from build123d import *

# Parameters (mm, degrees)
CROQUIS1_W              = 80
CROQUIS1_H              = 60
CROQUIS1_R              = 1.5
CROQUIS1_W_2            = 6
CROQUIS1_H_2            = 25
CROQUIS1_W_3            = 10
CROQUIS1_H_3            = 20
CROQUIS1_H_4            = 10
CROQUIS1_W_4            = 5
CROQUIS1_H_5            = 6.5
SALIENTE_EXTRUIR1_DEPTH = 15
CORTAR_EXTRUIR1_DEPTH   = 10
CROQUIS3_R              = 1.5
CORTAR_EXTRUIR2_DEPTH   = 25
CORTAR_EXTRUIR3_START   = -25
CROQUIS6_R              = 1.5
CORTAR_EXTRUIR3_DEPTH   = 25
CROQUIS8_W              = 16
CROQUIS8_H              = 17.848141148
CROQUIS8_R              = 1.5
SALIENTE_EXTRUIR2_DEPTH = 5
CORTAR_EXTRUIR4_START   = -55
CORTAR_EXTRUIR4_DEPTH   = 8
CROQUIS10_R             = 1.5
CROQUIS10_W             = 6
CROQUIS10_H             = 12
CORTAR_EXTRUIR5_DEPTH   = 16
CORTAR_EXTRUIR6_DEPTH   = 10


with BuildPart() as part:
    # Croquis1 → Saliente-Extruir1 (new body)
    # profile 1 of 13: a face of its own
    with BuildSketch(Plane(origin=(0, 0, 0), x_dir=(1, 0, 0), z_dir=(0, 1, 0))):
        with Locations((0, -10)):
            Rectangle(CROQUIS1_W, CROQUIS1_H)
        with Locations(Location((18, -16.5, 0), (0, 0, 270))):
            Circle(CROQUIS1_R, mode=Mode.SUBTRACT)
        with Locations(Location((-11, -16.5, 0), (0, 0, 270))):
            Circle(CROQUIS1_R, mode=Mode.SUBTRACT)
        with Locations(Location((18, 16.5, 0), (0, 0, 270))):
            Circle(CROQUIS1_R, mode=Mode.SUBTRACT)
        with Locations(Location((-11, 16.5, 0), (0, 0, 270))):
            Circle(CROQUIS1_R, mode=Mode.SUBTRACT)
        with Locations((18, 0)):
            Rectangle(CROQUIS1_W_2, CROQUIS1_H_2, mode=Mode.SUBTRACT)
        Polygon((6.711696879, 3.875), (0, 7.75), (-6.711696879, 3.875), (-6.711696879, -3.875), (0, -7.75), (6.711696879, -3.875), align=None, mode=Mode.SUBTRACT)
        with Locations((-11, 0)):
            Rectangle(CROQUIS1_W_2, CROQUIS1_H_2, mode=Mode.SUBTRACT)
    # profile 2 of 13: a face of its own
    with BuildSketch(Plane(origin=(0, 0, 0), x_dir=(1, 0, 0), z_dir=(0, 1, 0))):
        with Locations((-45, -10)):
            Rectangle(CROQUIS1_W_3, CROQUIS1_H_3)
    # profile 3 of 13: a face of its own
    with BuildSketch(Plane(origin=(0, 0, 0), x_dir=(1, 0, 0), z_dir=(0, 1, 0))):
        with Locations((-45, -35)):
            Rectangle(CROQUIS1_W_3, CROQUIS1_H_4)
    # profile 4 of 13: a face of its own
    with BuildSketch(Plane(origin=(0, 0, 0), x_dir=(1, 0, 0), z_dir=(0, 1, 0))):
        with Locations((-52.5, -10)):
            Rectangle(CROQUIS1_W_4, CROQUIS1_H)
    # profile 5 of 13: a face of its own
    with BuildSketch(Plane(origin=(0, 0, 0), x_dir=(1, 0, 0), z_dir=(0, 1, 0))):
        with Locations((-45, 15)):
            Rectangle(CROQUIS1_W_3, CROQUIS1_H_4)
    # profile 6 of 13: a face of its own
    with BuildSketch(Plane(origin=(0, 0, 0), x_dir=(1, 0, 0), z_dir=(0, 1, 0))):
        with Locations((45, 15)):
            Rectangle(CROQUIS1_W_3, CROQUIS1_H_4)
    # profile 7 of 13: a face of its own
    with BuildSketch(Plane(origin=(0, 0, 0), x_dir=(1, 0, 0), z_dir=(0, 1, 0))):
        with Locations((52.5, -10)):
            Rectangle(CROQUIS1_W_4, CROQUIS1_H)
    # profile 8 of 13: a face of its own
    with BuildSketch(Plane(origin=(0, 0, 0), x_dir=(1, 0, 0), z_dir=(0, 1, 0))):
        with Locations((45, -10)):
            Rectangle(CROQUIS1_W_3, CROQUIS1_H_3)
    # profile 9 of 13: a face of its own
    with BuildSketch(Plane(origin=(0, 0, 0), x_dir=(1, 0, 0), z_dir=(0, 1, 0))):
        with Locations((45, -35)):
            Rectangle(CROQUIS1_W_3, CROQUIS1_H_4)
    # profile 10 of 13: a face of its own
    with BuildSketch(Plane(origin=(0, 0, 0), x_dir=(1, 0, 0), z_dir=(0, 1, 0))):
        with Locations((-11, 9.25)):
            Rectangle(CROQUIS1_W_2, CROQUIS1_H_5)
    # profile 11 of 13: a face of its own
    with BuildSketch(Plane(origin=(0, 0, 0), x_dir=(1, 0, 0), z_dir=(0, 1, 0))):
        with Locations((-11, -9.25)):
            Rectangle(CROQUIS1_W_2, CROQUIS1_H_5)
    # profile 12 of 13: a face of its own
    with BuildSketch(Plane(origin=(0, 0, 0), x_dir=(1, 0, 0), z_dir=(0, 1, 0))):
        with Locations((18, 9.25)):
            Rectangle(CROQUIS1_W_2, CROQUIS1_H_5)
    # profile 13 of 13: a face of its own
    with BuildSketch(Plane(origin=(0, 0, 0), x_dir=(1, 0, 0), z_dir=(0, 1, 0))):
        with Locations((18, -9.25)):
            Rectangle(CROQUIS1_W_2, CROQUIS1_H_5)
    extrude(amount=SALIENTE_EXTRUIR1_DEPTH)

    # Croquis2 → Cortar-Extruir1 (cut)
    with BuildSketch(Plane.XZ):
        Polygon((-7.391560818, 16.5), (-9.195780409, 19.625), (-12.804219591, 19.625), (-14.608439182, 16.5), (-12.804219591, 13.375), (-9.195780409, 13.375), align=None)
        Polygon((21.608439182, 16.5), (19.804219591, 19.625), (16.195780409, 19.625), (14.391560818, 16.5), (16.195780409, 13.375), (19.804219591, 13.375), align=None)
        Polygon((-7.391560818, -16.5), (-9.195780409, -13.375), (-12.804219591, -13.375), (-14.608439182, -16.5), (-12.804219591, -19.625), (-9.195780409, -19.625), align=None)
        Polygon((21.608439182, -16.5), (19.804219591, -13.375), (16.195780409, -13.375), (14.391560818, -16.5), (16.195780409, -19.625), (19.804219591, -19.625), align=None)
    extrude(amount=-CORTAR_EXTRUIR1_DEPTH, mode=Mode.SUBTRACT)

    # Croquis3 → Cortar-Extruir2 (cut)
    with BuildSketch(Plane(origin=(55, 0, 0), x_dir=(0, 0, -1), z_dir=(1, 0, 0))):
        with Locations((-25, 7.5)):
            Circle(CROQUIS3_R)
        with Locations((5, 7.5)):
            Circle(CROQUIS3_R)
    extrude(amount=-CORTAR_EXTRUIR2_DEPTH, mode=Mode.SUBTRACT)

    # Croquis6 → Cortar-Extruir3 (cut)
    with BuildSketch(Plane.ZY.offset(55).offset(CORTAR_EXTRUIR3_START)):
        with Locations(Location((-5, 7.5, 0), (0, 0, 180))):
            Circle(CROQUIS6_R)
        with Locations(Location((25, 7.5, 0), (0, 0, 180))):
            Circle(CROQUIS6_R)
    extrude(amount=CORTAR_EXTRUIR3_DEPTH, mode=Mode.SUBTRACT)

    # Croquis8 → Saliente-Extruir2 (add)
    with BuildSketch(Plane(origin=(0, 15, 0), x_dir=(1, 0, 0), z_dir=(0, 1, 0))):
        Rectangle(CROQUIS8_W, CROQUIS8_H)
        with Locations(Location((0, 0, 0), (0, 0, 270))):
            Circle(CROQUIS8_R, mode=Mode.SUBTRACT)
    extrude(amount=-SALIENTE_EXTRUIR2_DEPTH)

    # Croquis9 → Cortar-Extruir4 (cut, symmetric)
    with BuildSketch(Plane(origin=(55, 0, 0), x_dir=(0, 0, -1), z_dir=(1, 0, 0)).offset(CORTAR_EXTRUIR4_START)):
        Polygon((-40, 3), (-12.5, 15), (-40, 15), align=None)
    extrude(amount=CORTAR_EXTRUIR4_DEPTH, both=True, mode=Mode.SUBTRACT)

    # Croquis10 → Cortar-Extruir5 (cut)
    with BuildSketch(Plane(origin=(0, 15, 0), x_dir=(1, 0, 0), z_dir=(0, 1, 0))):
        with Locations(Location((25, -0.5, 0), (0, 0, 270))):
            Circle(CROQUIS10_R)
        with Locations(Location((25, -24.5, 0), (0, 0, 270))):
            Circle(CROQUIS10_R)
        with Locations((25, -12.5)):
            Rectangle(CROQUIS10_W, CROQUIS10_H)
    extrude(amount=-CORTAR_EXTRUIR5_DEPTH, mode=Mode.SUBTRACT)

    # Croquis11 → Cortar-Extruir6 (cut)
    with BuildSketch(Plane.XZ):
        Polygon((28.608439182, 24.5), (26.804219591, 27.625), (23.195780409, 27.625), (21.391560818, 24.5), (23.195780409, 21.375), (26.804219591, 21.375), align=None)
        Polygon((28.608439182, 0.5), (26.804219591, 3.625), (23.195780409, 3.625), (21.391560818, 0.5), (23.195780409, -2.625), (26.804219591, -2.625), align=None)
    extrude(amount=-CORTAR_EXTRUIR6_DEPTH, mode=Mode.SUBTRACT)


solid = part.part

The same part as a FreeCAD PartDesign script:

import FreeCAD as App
import Part
import Sketcher
Q = App.Units.Quantity


def add_polygon(sketch, points):
    """Adds a closed chain of lines whose ends are joined by coincident constraints."""
    first, n = sketch.GeometryCount, len(points)
    for a, b in zip(points, points[1:] + points[:1]):
        sketch.addGeometry(Part.LineSegment(App.Vector(*a, 0), App.Vector(*b, 0)), False)
    for i in range(n):
        sketch.addConstraint(Sketcher.Constraint("Coincident", first + i, 2, first + (i + 1) % n, 1))

doc = App.newDocument("Part")
params = doc.addObject("Spreadsheet::Sheet", "Params")
for row, (alias, value) in enumerate([
    ("sketch1_diameter", "3 mm"),
    ("sketch1_width", "110 mm"),
    ("sketch1_width2", "10 mm"),
    ("sketch1_width3", "6 mm"),
    ("sketch1_height", "60 mm"),
    ("pad1_length", "15 mm"),
    ("pocket1_length", "10 mm"),
    ("sketch3_diameter", "3 mm"),
    ("pocket2_length", "25 mm"),
    ("sketch4_diameter", "3 mm"),
    ("pocket3_length", "25 mm"),
    ("sketch5_diameter", "3 mm"),
    ("sketch5_width", "16 mm"),
    ("pad2_length", "5 mm"),
    ("sketch6_width", "12 mm"),
    ("sketch6_height", "27.5 mm"),
    ("pocket4_length", "16 mm"),
    ("sketch7_diameter", "3 mm"),
    ("sketch7_width", "6 mm"),
    ("sketch7_height", "12 mm"),
    ("pocket5_length", "16 mm"),
    ("pocket6_length", "10 mm"),
], start=1):
    params.set(f"A{row}", alias)
    params.set(f"B{row}", "=" + value)
    params.setAlias(f"B{row}", alias)

body = doc.addObject("PartDesign::Body", "Body")

# Sketch on XZ plane
sketch1 = body.newObject("Sketcher::SketchObject", "Sketch")
sketch1.AttachmentSupport = (doc.getObject("XZ_Plane"), [""])
sketch1.MapMode = "FlatFace"
add_polygon(sketch1, [(55, 40), (55, -20), (-55, -20), (-55, 40)])  # lines 0-3
add_polygon(sketch1, [(-40, 20), (-40, 30), (-50, 30), (-50, 20)])  # lines 4-7
add_polygon(sketch1, [(-40, -10), (-40, 0), (-50, 0), (-50, -10)])  # lines 8-11
add_polygon(sketch1, [(40, 30), (40, 20), (50, 20), (50, 30)])  # lines 12-15
add_polygon(sketch1, [(40, 0), (40, -10), (50, -10), (50, 0)])  # lines 16-19
sketch1.addGeometry(Part.Circle(App.Vector(-11, 16.5, 0), App.Vector(0, 0, 1), 1.5), False)  # 20
sketch1.addGeometry(Part.Circle(App.Vector(18, 16.5, 0), App.Vector(0, 0, 1), 1.5), False)  # 21
add_polygon(sketch1, [(-8, -6), (-8, 6), (-14, 6), (-14, -6)])  # lines 22-25
add_polygon(sketch1, [(0, -7.8), (6.7, -3.9), (6.7, 3.9), (0, 7.8), (-6.7, 3.9), (-6.7, -3.9)])  # lines 26-31
sketch1.addGeometry(Part.Circle(App.Vector(-11, -16.5, 0), App.Vector(0, 0, 1), 1.5), False)  # 32
add_polygon(sketch1, [(15, 6), (15, -6), (21, -6), (21, 6)])  # lines 33-36
sketch1.addGeometry(Part.Circle(App.Vector(18, -16.5, 0), App.Vector(0, 0, 1), 1.5), False)  # 37
sketch1.addConstraint([
    Sketcher.Constraint("Vertical", 0),
    Sketcher.Constraint("Horizontal", 1),
    Sketcher.Constraint("Vertical", 2),
    Sketcher.Constraint("Horizontal", 3),
    Sketcher.Constraint("Vertical", 4),
    Sketcher.Constraint("Horizontal", 5),
    Sketcher.Constraint("Vertical", 6),
    Sketcher.Constraint("Horizontal", 7),
    Sketcher.Constraint("Vertical", 8),
    Sketcher.Constraint("Horizontal", 9),
    Sketcher.Constraint("Vertical", 10),
    Sketcher.Constraint("Horizontal", 11),
    Sketcher.Constraint("Vertical", 12),
    Sketcher.Constraint("Horizontal", 13),
    Sketcher.Constraint("Vertical", 14),
    Sketcher.Constraint("Horizontal", 15),
    Sketcher.Constraint("Vertical", 16),
    Sketcher.Constraint("Horizontal", 17),
    Sketcher.Constraint("Vertical", 18),
    Sketcher.Constraint("Horizontal", 19),
    Sketcher.Constraint("Vertical", 22),
    Sketcher.Constraint("Horizontal", 23),
    Sketcher.Constraint("Vertical", 24),
    Sketcher.Constraint("Horizontal", 25),
    Sketcher.Constraint("Vertical", 27),
    Sketcher.Constraint("Vertical", 30),
    Sketcher.Constraint("Vertical", 33),
    Sketcher.Constraint("Horizontal", 34),
    Sketcher.Constraint("Vertical", 35),
    Sketcher.Constraint("Horizontal", 36),
    Sketcher.Constraint("Equal", 20, 21),
    Sketcher.Constraint("Equal", 21, 32),
    Sketcher.Constraint("Equal", 32, 37),
    Sketcher.Constraint("Symmetric", 9, 2, 18, 2, -1, 1),
    Sketcher.Constraint("Symmetric", 26, 2, 29, 2, -1, 1),
    Sketcher.Constraint("Symmetric", 28, 2, 31, 2, -1, 1),
    Sketcher.Constraint("Symmetric", 7, 2, 12, 2, -2),
    Sketcher.Constraint("Symmetric", 5, 2, 14, 2, -2),
    Sketcher.Constraint("Symmetric", 11, 2, 16, 2, -2),
    Sketcher.Constraint("Symmetric", 20, 3, 32, 3, -1),
    Sketcher.Constraint("Symmetric", 21, 3, 37, 3, -1),
    Sketcher.Constraint("PointOnObject", 8, 2, -1),
    Sketcher.Constraint("PointOnObject", 28, 2, -2),
    Sketcher.Constraint("Parallel", 28, 31),
    Sketcher.Constraint("Horizontal", 20, 3, 21, 3),
    Sketcher.Constraint("Horizontal", 27, 2, 29, 2),
    Sketcher.Constraint("Horizontal", 25, 2, 33, 2),
    Sketcher.Constraint("Horizontal", 23, 2, 35, 2),
    Sketcher.Constraint("Vertical", 7, 2, 8, 2),
    Sketcher.Constraint("Vertical", 6, 2, 9, 2),
    Sketcher.Constraint("Equal", 25, 34),
    Sketcher.Constraint("Equal", 19, 4),
    Sketcher.Constraint("Equal", 6, 8),
    Sketcher.Constraint("Diameter", 20, 3.0),
    Sketcher.Constraint("DistanceX", 1, 2, 1, 1, 110.0),
    Sketcher.Constraint("DistanceX", 5, 2, 5, 1, 10.0),
    Sketcher.Constraint("DistanceX", 23, 2, 23, 1, 6.0),
    Sketcher.Constraint("DistanceY", 0, 2, 0, 1, 60.0),
    Sketcher.Constraint("DistanceY", 22, 1, 22, 2, 12.0),
    Sketcher.Constraint("Angle", 26, Q("30 deg")),
    Sketcher.Constraint("DistanceX", 20, 3, -1, 1, 11.0),
    Sketcher.Constraint("DistanceX", -1, 1, 21, 3, 18.0),
    Sketcher.Constraint("DistanceX", -1, 1, 0, 2, 55.0),
    Sketcher.Constraint("DistanceY", 0, 2, -1, 1, 20.0),
    Sketcher.Constraint("DistanceX", 4, 2, -1, 1, 40.0),
    Sketcher.Constraint("DistanceY", -1, 1, 4, 2, 30.0),
    Sketcher.Constraint("DistanceX", 22, 2, -1, 1, 8.0),
    Sketcher.Constraint("DistanceY", -1, 1, 22, 2, 6.0),
    Sketcher.Constraint("DistanceX", -1, 1, 33, 2, 15.0),
    Sketcher.Constraint("DistanceY", 32, 3, 20, 3, 33.0),
    Sketcher.Constraint("DistanceY", 27, 1, 27, 2, 7.75),
    Sketcher.Constraint("Distance", 26, 7.75),
])
sketch1.setExpression("Constraints[87]", "Params.sketch1_diameter")
sketch1.setExpression("Constraints[88]", "Params.sketch1_width")
sketch1.setExpression("Constraints[89]", "Params.sketch1_width2")
sketch1.setExpression("Constraints[90]", "Params.sketch1_width3")
sketch1.setExpression("Constraints[91]", "Params.sketch1_height")
pad1 = body.newObject("PartDesign::Pad", "Pad")
pad1.Profile = sketch1
pad1.setExpression("Length", "Params.pad1_length")
pad1.Reversed = True

# Sketch on XZ plane
sketch2 = body.newObject("Sketcher::SketchObject", "Sketch001")
sketch2.AttachmentSupport = (doc.getObject("XZ_Plane"), [""])
sketch2.MapMode = "FlatFace"
add_polygon(sketch2, [(-7.4, 16.5), (-9.2, 19.6), (-12.8, 19.6), (-14.6, 16.5), (-12.8, 13.4), (-9.2, 13.4)])  # lines 0-5
add_polygon(sketch2, [(21.6, 16.5), (19.8, 19.6), (16.2, 19.6), (14.4, 16.5), (16.2, 13.4), (19.8, 13.4)])  # lines 6-11
add_polygon(sketch2, [(-7.4, -16.5), (-9.2, -13.4), (-12.8, -13.4), (-14.6, -16.5), (-12.8, -19.6), (-9.2, -19.6)])  # lines 12-17
add_polygon(sketch2, [(21.6, -16.5), (19.8, -13.4), (16.2, -13.4), (14.4, -16.5), (16.2, -19.6), (19.8, -19.6)])  # lines 18-23
sketch2.addConstraint([
    Sketcher.Constraint("Horizontal", 1),
    Sketcher.Constraint("Horizontal", 4),
    Sketcher.Constraint("Horizontal", 7),
    Sketcher.Constraint("Horizontal", 10),
    Sketcher.Constraint("Horizontal", 13),
    Sketcher.Constraint("Horizontal", 16),
    Sketcher.Constraint("Horizontal", 19),
    Sketcher.Constraint("Horizontal", 22),
    Sketcher.Constraint("Symmetric", 4, 2, 12, 2, -1),
    Sketcher.Constraint("Symmetric", 2, 2, 14, 2, -1),
    Sketcher.Constraint("Symmetric", 1, 2, 15, 2, -1),
    Sketcher.Constraint("Symmetric", 5, 2, 17, 2, -1),
    Sketcher.Constraint("Symmetric", 10, 2, 18, 2, -1),
    Sketcher.Constraint("Symmetric", 8, 2, 20, 2, -1),
    Sketcher.Constraint("Symmetric", 7, 2, 21, 2, -1),
    Sketcher.Constraint("Symmetric", 11, 2, 23, 2, -1),
    Sketcher.Constraint("Parallel", 0, 3),
    Sketcher.Constraint("Parallel", 2, 5),
    Sketcher.Constraint("Parallel", 3, 6),
    Sketcher.Constraint("Parallel", 5, 8),
    Sketcher.Constraint("Parallel", 6, 9),
    Sketcher.Constraint("Parallel", 8, 11),
    Sketcher.Constraint("Parallel", 9, 12),
    Sketcher.Constraint("Parallel", 11, 14),
    Sketcher.Constraint("Parallel", 14, 17),
    Sketcher.Constraint("Parallel", 17, 20),
    Sketcher.Constraint("Parallel", 20, 23),
    Sketcher.Constraint("Horizontal", 2, 2, 5, 2),
    Sketcher.Constraint("Horizontal", 1, 2, 6, 2),
    Sketcher.Constraint("Horizontal", 5, 2, 8, 2),
    Sketcher.Constraint("Horizontal", 4, 2, 9, 2),
    Sketcher.Constraint("Horizontal", 8, 2, 11, 2),
    Sketcher.Constraint("Vertical", 1, 2, 3, 2),
    Sketcher.Constraint("Equal", 4, 7),
    Sketcher.Constraint("Angle", 0, Q("120 deg")),
    Sketcher.Constraint("DistanceX", 0, 2, 6, 2, 29.0),
    Sketcher.Constraint("DistanceY", 12, 2, 0, 2, 33.0),
    Sketcher.Constraint("DistanceY", 3, 2, 1, 2, 6.25),
    Sketcher.Constraint("DistanceX", 1, 2, 1, 1, 3.608439),
    Sketcher.Constraint("DistanceX", 0, 2, -1, 1, 9.19578),
])
pocket1 = body.newObject("PartDesign::Pocket", "Pocket")
pocket1.Profile = sketch2
pocket1.setExpression("Length", "Params.pocket1_length")

# Sketch on YZ plane
sketch3 = body.newObject("Sketcher::SketchObject", "Sketch002")
sketch3.AttachmentSupport = (doc.getObject("YZ_Plane"), [""])
sketch3.MapMode = "FlatFace"
sketch3.AttachmentOffset = App.Placement(App.Vector(0, 0, 55), App.Rotation())
sketch3.addGeometry([
    Part.Circle(App.Vector(7.5, 25, 0), App.Vector(0, 0, 1), 1.5),
    Part.Circle(App.Vector(7.5, -5, 0), App.Vector(0, 0, 1), 1.5),
], False)
sketch3.addConstraint([
    Sketcher.Constraint("Equal", 0, 1),
    Sketcher.Constraint("Vertical", 0, 3, 1, 3),
    Sketcher.Constraint("Diameter", 0, 3.0),
    Sketcher.Constraint("DistanceY", -1, 1, 0, 3, 25.0),
    Sketcher.Constraint("DistanceY", 1, 3, -1, 1, 5.0),
    Sketcher.Constraint("DistanceX", -1, 1, 0, 3, 7.5),
])
sketch3.setExpression("Constraints[2]", "Params.sketch3_diameter")
pocket2 = body.newObject("PartDesign::Pocket", "Pocket001")
pocket2.Profile = sketch3
pocket2.setExpression("Length", "Params.pocket2_length")

# Sketch on YZ plane
sketch4 = body.newObject("Sketcher::SketchObject", "Sketch003")
sketch4.AttachmentSupport = (doc.getObject("YZ_Plane"), [""])
sketch4.MapMode = "FlatFace"
sketch4.AttachmentOffset = App.Placement(App.Vector(0, 0, -30), App.Rotation())
sketch4.addGeometry([
    Part.Circle(App.Vector(7.5, -5, 0), App.Vector(0, 0, 1), 1.5),
    Part.Circle(App.Vector(7.5, 25, 0), App.Vector(0, 0, 1), 1.5),
], False)
sketch4.addConstraint([
    Sketcher.Constraint("Equal", 0, 1),
    Sketcher.Constraint("Vertical", 0, 3, 1, 3),
    Sketcher.Constraint("Diameter", 0, 3.0),
    Sketcher.Constraint("DistanceY", 0, 3, -1, 1, 5.0),
    Sketcher.Constraint("DistanceY", -1, 1, 1, 3, 25.0),
    Sketcher.Constraint("DistanceX", -1, 1, 0, 3, 7.5),
])
sketch4.setExpression("Constraints[2]", "Params.sketch4_diameter")
pocket3 = body.newObject("PartDesign::Pocket", "Pocket002")
pocket3.Profile = sketch4
pocket3.setExpression("Length", "Params.pocket3_length")

# Sketch on XZ plane
sketch5 = body.newObject("Sketcher::SketchObject", "Sketch004")
sketch5.AttachmentSupport = (doc.getObject("XZ_Plane"), [""])
sketch5.MapMode = "FlatFace"
sketch5.AttachmentOffset = App.Placement(App.Vector(0, 0, -15), App.Rotation())
add_polygon(sketch5, [(-8, -8.9), (-8, 8.9), (8, 8.9), (8, -8.9)])  # lines 0-3
sketch5.addGeometry(Part.Circle(App.Vector(0, 0, 0), App.Vector(0, 0, 1), 1.5), False)  # 4
sketch5.addConstraint([
    Sketcher.Constraint("Vertical", 0),
    Sketcher.Constraint("Horizontal", 1),
    Sketcher.Constraint("Vertical", 2),
    Sketcher.Constraint("Horizontal", 3),
    Sketcher.Constraint("Coincident", 4, 3, -1, 1),
    Sketcher.Constraint("Symmetric", 0, 2, 2, 2, -1, 1),
    Sketcher.Constraint("Diameter", 4, 3.0),
    Sketcher.Constraint("DistanceX", 1, 1, 1, 2, 16.0),
    Sketcher.Constraint("DistanceY", 0, 1, 0, 2, 17.848141),
])
sketch5.setExpression("Constraints[10]", "Params.sketch5_diameter")
sketch5.setExpression("Constraints[11]", "Params.sketch5_width")
pad2 = body.newObject("PartDesign::Pad", "Pad001")
pad2.Profile = sketch5
pad2.setExpression("Length", "Params.pad2_length")

# Sketch on YZ plane
sketch6 = body.newObject("Sketcher::SketchObject", "Sketch005")
sketch6.AttachmentSupport = (doc.getObject("YZ_Plane"), [""])
sketch6.MapMode = "FlatFace"
add_polygon(sketch6, [(3, 40), (15, 12), (15, 40)])  # lines 0-2
sketch6.addConstraint([
    Sketcher.Constraint("Vertical", 1),
    Sketcher.Constraint("Horizontal", 2),
    Sketcher.Constraint("DistanceX", 2, 2, 2, 1, 12.0),
    Sketcher.Constraint("DistanceY", 1, 1, 1, 2, 27.5),
    Sketcher.Constraint("DistanceX", -1, 1, 0, 2, 15.0),
    Sketcher.Constraint("DistanceY", -1, 1, 1, 2, 40.0),
])
sketch6.setExpression("Constraints[5]", "Params.sketch6_width")
sketch6.setExpression("Constraints[6]", "Params.sketch6_height")
pocket4 = body.newObject("PartDesign::Pocket", "Pocket003")
pocket4.Profile = sketch6
pocket4.setExpression("Length", "Params.pocket4_length")
pocket4.Midplane = True

# Sketch on XZ plane
sketch7 = body.newObject("Sketcher::SketchObject", "Sketch006")
sketch7.AttachmentSupport = (doc.getObject("XZ_Plane"), [""])
sketch7.MapMode = "FlatFace"
sketch7.AttachmentOffset = App.Placement(App.Vector(0, 0, -15), App.Rotation())
sketch7.addGeometry(Part.Circle(App.Vector(25, 0.5, 0), App.Vector(0, 0, 1), 1.5), False)  # 0
sketch7.addGeometry(Part.Circle(App.Vector(25, 24.5, 0), App.Vector(0, 0, 1), 1.5), False)  # 1
add_polygon(sketch7, [(22, 6.5), (22, 18.5), (28, 18.5), (28, 6.5)])  # lines 2-5
sketch7.addConstraint([
    Sketcher.Constraint("Vertical", 2),
    Sketcher.Constraint("Horizontal", 3),
    Sketcher.Constraint("Vertical", 4),
    Sketcher.Constraint("Horizontal", 5),
    Sketcher.Constraint("Equal", 0, 1),
    Sketcher.Constraint("Vertical", 0, 3, 1, 3),
    Sketcher.Constraint("Diameter", 0, 3.0),
    Sketcher.Constraint("DistanceX", 3, 1, 3, 2, 6.0),
    Sketcher.Constraint("DistanceY", 2, 1, 2, 2, 12.0),
    Sketcher.Constraint("DistanceX", -1, 1, 0, 3, 25.0),
    Sketcher.Constraint("DistanceX", -1, 1, 2, 2, 22.0),
    Sketcher.Constraint("DistanceY", 0, 3, 1, 3, 24.0),
    Sketcher.Constraint("DistanceY", 2, 2, 1, 3, 6.0),
    Sketcher.Constraint("DistanceY", -1, 1, 0, 3, 0.5),
])
sketch7.setExpression("Constraints[10]", "Params.sketch7_diameter")
sketch7.setExpression("Constraints[11]", "Params.sketch7_width")
sketch7.setExpression("Constraints[12]", "Params.sketch7_height")
pocket5 = body.newObject("PartDesign::Pocket", "Pocket004")
pocket5.Profile = sketch7
pocket5.setExpression("Length", "Params.pocket5_length")
pocket5.Reversed = True

# Sketch on XZ plane
sketch8 = body.newObject("Sketcher::SketchObject", "Sketch007")
sketch8.AttachmentSupport = (doc.getObject("XZ_Plane"), [""])
sketch8.MapMode = "FlatFace"
add_polygon(sketch8, [(28.6, 24.5), (26.8, 27.6), (23.2, 27.6), (21.4, 24.5), (23.2, 21.4), (26.8, 21.4)])  # lines 0-5
add_polygon(sketch8, [(28.6, 0.5), (26.8, 3.6), (23.2, 3.6), (21.4, 0.5), (23.2, -2.6), (26.8, -2.6)])  # lines 6-11
sketch8.addConstraint([
    Sketcher.Constraint("Horizontal", 1),
    Sketcher.Constraint("Horizontal", 4),
    Sketcher.Constraint("Horizontal", 7),
    Sketcher.Constraint("Horizontal", 10),
    Sketcher.Constraint("Parallel", 0, 3),
    Sketcher.Constraint("Parallel", 2, 5),
    Sketcher.Constraint("Parallel", 3, 6),
    Sketcher.Constraint("Parallel", 5, 8),
    Sketcher.Constraint("Parallel", 6, 9),
    Sketcher.Constraint("Parallel", 8, 11),
    Sketcher.Constraint("Horizontal", 2, 2, 5, 2),
    Sketcher.Constraint("Horizontal", 8, 2, 11, 2),
    Sketcher.Constraint("Vertical", 1, 2, 3, 2),
    Sketcher.Constraint("Vertical", 0, 2, 4, 2),
    Sketcher.Constraint("Vertical", 4, 2, 6, 2),
    Sketcher.Constraint("Vertical", 3, 2, 7, 2),
    Sketcher.Constraint("Vertical", 2, 2, 8, 2),
    Sketcher.Constraint("Vertical", 7, 2, 9, 2),
    Sketcher.Constraint("Angle", 0, Q("120 deg")),
    Sketcher.Constraint("DistanceY", 6, 2, 0, 2, 24.0),
    Sketcher.Constraint("DistanceY", -1, 1, 2, 2, 24.5),
    Sketcher.Constraint("DistanceY", 3, 2, 1, 2, 6.25),
    Sketcher.Constraint("DistanceX", 1, 2, 1, 1, 3.608439),
    Sketcher.Constraint("DistanceX", -1, 1, 0, 2, 26.80422),
])
pocket6 = body.newObject("PartDesign::Pocket", "Pocket005")
pocket6.Profile = sketch8
pocket6.setExpression("Length", "Params.pocket6_length")

doc.recompute()
